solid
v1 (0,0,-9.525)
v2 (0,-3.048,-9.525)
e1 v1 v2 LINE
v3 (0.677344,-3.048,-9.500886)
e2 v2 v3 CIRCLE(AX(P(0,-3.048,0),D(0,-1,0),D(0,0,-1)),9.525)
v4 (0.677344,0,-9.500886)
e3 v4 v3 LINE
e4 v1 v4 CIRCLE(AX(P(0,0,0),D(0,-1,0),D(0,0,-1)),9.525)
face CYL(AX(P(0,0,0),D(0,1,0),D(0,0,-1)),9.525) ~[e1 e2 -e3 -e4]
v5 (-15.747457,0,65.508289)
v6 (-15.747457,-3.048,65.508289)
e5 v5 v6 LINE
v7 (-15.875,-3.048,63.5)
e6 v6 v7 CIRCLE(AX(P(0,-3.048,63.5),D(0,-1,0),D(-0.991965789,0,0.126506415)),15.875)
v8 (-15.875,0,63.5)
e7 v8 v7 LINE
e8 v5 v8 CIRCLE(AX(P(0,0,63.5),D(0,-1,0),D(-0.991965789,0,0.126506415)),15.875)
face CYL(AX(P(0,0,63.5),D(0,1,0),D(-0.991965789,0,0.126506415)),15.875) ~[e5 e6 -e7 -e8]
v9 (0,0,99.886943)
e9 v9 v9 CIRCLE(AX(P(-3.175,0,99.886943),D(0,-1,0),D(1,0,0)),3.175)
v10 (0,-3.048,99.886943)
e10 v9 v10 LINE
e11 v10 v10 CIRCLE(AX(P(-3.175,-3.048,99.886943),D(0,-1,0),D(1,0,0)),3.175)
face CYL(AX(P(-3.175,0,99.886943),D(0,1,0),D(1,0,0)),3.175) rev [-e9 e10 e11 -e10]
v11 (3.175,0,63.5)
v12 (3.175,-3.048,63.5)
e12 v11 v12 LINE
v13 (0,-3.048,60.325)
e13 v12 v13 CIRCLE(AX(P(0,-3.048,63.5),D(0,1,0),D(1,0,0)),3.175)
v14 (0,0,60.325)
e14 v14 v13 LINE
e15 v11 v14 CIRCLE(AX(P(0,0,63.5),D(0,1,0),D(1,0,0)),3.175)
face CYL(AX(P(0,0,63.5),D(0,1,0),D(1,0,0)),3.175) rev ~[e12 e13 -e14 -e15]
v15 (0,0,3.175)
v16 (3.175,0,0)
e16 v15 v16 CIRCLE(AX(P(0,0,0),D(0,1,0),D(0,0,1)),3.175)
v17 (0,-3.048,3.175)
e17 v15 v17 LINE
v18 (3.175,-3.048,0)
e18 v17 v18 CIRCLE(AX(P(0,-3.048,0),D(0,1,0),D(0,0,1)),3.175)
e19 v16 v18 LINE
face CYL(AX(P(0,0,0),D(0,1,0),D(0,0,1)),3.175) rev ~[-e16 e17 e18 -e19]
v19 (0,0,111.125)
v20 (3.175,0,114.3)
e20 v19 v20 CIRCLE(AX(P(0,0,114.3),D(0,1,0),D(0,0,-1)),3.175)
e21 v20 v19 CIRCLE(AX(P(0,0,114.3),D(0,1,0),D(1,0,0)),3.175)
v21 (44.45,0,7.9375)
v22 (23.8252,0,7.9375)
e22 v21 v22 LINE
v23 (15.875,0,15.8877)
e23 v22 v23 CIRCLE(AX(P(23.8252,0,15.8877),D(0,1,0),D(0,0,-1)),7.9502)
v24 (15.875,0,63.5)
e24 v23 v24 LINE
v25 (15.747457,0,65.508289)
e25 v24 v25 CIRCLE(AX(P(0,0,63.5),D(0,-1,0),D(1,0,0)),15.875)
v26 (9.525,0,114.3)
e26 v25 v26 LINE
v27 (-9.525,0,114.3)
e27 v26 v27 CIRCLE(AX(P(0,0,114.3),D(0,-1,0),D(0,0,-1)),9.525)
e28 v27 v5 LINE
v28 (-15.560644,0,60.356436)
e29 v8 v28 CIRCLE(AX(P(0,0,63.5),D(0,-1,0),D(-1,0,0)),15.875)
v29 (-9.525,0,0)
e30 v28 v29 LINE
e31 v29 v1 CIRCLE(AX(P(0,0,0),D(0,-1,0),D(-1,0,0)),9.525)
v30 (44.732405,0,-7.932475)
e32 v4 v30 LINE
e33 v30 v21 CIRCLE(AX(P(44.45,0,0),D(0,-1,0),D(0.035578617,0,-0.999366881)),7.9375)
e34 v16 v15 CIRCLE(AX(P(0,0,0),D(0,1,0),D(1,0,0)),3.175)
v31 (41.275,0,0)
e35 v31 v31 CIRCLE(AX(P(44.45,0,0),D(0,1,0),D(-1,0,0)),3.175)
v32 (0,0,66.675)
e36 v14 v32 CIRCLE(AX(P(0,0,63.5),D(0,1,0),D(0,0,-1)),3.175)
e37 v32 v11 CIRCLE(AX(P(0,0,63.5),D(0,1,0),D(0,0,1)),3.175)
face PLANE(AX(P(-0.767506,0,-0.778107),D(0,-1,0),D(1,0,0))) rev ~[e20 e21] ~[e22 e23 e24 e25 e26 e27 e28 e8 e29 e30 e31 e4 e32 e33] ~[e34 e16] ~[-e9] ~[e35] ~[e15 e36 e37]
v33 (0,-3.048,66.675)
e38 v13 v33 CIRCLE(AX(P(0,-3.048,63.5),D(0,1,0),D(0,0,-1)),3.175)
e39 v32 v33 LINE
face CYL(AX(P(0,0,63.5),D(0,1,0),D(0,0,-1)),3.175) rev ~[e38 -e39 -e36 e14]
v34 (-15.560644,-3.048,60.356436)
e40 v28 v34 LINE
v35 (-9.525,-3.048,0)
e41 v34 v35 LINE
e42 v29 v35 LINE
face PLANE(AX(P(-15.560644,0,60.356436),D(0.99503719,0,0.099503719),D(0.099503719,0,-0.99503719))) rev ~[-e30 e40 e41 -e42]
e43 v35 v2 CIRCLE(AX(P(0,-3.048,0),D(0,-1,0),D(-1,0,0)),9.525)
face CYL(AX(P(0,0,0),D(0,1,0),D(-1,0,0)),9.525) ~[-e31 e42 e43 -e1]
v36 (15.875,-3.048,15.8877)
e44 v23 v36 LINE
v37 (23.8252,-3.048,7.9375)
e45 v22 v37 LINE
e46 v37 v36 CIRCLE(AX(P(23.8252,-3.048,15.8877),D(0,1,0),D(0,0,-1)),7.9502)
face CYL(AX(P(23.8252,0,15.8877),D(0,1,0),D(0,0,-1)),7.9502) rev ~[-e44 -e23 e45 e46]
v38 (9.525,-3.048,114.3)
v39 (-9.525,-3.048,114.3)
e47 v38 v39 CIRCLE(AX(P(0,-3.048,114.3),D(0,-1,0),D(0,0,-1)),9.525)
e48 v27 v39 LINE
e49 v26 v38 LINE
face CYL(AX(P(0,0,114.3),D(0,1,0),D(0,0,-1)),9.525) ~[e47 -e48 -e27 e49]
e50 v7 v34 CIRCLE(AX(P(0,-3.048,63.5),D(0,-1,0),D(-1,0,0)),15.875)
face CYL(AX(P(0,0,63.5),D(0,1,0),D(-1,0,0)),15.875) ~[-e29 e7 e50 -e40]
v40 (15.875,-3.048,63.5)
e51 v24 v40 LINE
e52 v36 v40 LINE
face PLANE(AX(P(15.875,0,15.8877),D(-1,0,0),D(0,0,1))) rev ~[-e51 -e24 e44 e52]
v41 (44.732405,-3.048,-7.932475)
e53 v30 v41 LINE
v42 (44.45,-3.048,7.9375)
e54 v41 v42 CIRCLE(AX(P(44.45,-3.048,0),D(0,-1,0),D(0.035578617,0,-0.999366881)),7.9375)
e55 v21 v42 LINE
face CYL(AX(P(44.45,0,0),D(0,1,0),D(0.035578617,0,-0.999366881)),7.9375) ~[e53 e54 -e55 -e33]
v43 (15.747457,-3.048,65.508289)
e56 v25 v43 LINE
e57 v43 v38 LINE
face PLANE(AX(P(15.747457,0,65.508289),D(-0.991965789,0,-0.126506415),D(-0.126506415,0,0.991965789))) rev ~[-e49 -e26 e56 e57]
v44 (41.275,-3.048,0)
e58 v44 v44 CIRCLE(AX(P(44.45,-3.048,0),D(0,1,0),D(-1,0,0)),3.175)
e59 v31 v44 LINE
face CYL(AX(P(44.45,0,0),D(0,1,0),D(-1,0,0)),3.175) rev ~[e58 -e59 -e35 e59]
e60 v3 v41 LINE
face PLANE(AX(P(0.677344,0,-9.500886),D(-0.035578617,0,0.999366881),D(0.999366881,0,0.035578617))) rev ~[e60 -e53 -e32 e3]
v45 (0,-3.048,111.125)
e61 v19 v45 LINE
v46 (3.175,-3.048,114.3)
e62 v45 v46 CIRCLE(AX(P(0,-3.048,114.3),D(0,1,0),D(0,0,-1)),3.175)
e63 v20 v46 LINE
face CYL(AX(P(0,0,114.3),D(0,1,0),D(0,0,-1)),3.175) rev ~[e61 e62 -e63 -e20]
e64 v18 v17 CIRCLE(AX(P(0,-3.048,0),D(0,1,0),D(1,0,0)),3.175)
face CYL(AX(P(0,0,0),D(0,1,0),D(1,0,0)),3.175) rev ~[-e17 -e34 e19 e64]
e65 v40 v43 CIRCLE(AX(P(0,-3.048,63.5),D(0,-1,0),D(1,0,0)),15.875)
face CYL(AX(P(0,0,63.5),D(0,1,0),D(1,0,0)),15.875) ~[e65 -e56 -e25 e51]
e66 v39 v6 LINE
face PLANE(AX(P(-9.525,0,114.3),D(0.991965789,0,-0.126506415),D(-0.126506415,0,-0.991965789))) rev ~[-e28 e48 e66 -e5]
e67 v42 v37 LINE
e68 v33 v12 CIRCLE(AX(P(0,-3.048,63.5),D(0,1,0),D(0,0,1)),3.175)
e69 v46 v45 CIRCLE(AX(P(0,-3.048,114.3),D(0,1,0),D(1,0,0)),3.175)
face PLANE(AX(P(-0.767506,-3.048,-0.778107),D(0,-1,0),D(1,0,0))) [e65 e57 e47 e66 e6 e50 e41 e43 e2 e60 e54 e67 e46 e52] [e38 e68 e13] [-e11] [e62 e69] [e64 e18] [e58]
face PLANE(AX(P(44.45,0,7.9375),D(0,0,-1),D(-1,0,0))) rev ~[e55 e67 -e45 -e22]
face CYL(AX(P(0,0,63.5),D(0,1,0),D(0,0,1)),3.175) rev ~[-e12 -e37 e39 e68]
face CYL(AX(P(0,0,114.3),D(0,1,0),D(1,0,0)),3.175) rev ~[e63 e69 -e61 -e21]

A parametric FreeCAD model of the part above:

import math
import FreeCAD as App
import Part
import Sketcher
Q = App.Units.Quantity

doc = App.newDocument("Part")
body = doc.addObject("PartDesign::Body", "Body")

# Sketch on XZ plane
sketch1 = doc.addObject("Sketcher::SketchObject", "Sketch")
body.addObject(sketch1)
sketch1.AttachmentSupport = (doc.XZ_Plane, [""])
sketch1.MapMode = "FlatFace"
sketch1.addGeometry([
    Part.ArcOfCircle(Part.Circle(App.Vector(0, 0, 0), App.Vector(0, 0, 1), 9.525), math.radians(180), math.radians(270)),  # 0
    Part.ArcOfCircle(Part.Circle(App.Vector(0, 0, 0), App.Vector(0, 0, 1), 9.525), math.radians(-90), math.radians(-85.92213)),  # 1
    Part.LineSegment(App.Vector(0.677344, -9.500886, 0), App.Vector(44.732405, -7.932475, 0)),  # 2
    Part.ArcOfCircle(Part.Circle(App.Vector(44.45, 0, 0), App.Vector(0, 0, 1), 7.9375), math.radians(-87.961065), math.radians(90)),  # 3
    Part.LineSegment(App.Vector(44.45, 7.9375, 0), App.Vector(23.8252, 7.9375, 0)),  # 4
    Part.ArcOfCircle(Part.Circle(App.Vector(23.8252, 15.8877, 0), App.Vector(0, 0, 1), 7.9502), math.radians(180), math.radians(270)),  # 5
    Part.LineSegment(App.Vector(15.875, 15.8877, 0), App.Vector(15.875, 63.5, 0)),  # 6
    Part.ArcOfCircle(Part.Circle(App.Vector(0, 63.5, 0), App.Vector(0, 0, 1), 15.875), math.radians(0), math.radians(7.267758)),  # 7
    Part.LineSegment(App.Vector(15.747457, 65.508289, 0), App.Vector(9.525, 114.3, 0)),  # 8
    Part.ArcOfCircle(Part.Circle(App.Vector(0, 114.3, 0), App.Vector(0, 0, 1), 9.525), math.radians(0), math.radians(180)),  # 9
    Part.LineSegment(App.Vector(-9.525, 114.3, 0), App.Vector(-15.747457, 65.508289, 0)),  # 10
    Part.ArcOfCircle(Part.Circle(App.Vector(0, 63.5, 0), App.Vector(0, 0, 1), 15.875), math.radians(172.732242), math.radians(180)),  # 11
    Part.ArcOfCircle(Part.Circle(App.Vector(0, 63.5, 0), App.Vector(0, 0, 1), 15.875), math.radians(180), math.radians(191.421186)),  # 12
    Part.LineSegment(App.Vector(-15.560644, 60.356436, 0), App.Vector(-9.525, 0, 0)),  # 13
    Part.ArcOfCircle(Part.Circle(App.Vector(0, 0, 0), App.Vector(0, 0, 1), 3.175), math.radians(90), math.radians(360)),  # 14
    Part.ArcOfCircle(Part.Circle(App.Vector(0, 0, 0), App.Vector(0, 0, 1), 3.175), math.radians(0), math.radians(90)),  # 15
    Part.Circle(App.Vector(44.45, 0, 0), App.Vector(0, 0, 1), 3.175),  # 16
    Part.ArcOfCircle(Part.Circle(App.Vector(0, 63.5, 0), App.Vector(0, 0, 1), 3.175), math.radians(90), math.radians(270)),  # 17
    Part.ArcOfCircle(Part.Circle(App.Vector(0, 63.5, 0), App.Vector(0, 0, 1), 3.175), math.radians(0), math.radians(90)),  # 18
    Part.ArcOfCircle(Part.Circle(App.Vector(0, 63.5, 0), App.Vector(0, 0, 1), 3.175), math.radians(-90), math.radians(0)),  # 19
    Part.Circle(App.Vector(-3.175, 99.886943, 0), App.Vector(0, 0, 1), 3.175),  # 20
    Part.ArcOfCircle(Part.Circle(App.Vector(0, 114.3, 0), App.Vector(0, 0, 1), 3.175), math.radians(0), math.radians(270)),  # 21
    Part.ArcOfCircle(Part.Circle(App.Vector(0, 114.3, 0), App.Vector(0, 0, 1), 3.175), math.radians(-90), math.radians(0)),  # 22
], False)
sketch1.addConstraint([
    Sketcher.Constraint("Tangent", 0, 2, 1, 1),
    Sketcher.Constraint("Coincident", 1, 2, 2, 1),
    Sketcher.Constraint("Tangent", 2, 2, 3, 1),
    Sketcher.Constraint("Tangent", 3, 2, 4, 1),
    Sketcher.Constraint("Tangent", 4, 2, 5, 2),
    Sketcher.Constraint("Tangent", 5, 1, 6, 1),
    Sketcher.Constraint("Tangent", 6, 2, 7, 1),
    Sketcher.Constraint("Tangent", 7, 2, 8, 1),
    Sketcher.Constraint("Coincident", 8, 2, 9, 1),
    Sketcher.Constraint("Coincident", 9, 2, 10, 1),
    Sketcher.Constraint("Tangent", 10, 2, 11, 1),
    Sketcher.Constraint("Tangent", 11, 2, 12, 1),
    Sketcher.Constraint("Coincident", 12, 2, 13, 1),
    Sketcher.Constraint("Coincident", 13, 2, 0, 1),
    Sketcher.Constraint("Tangent", 14, 1, 15, 2),
    Sketcher.Constraint("Coincident", 15, 1, 14, 2),
    Sketcher.Constraint("Tangent", 17, 1, 18, 2),
    Sketcher.Constraint("Tangent", 18, 1, 19, 2),
    Sketcher.Constraint("Tangent", 19, 1, 17, 2),
    Sketcher.Constraint("Tangent", 21, 1, 22, 2),
    Sketcher.Constraint("Coincident", 22, 1, 21, 2),
    Sketcher.Constraint("Horizontal", 4),
    Sketcher.Constraint("Vertical", 6),
    Sketcher.Constraint("Coincident", 0, 3, -1, 1),
    Sketcher.Constraint("Coincident", 14, 3, -1, 1),
    Sketcher.Constraint("Coincident", 11, 3, 7, 3),
    Sketcher.Constraint("Coincident", 16, 3, 3, 3),
    Sketcher.Constraint("Coincident", 17, 3, 7, 3),
    Sketcher.Constraint("Coincident", 21, 3, 9, 3),
    Sketcher.Constraint("Equal", 0, 1),
    Sketcher.Constraint("Equal", 1, 9),
    Sketcher.Constraint("Equal", 7, 11),
    Sketcher.Constraint("Equal", 11, 12),
    Sketcher.Constraint("Equal", 15, 16),
    Sketcher.Constraint("Equal", 16, 17),
    Sketcher.Constraint("Equal", 19, 20),
    Sketcher.Constraint("Equal", 20, 21),
    Sketcher.Constraint("Symmetric", 8, 2, 9, 2, -2),
    Sketcher.Constraint("Symmetric", 6, 2, 11, 2, -2),
    Sketcher.Constraint("PointOnObject", 3, 3, -1),
    Sketcher.Constraint("PointOnObject", 0, 2, -2),
    Sketcher.Constraint("PointOnObject", 13, 2, -1),
    Sketcher.Constraint("PointOnObject", 14, 1, -2),
    Sketcher.Constraint("PointOnObject", 15, 1, -1),
    Sketcher.Constraint("PointOnObject", 17, 1, -2),
    Sketcher.Constraint("PointOnObject", 19, 1, -2),
    Sketcher.Constraint("PointOnObject", 22, 1, -2),
    Sketcher.Constraint("Horizontal", 22, 3, 8, 2),
    Sketcher.Constraint("Horizontal", 11, 2, 18, 1),
    Sketcher.Constraint("Horizontal", 9, 2, 21, 1),
    Sketcher.Constraint("Diameter", 16, Q("0.25 in")),
    Sketcher.Constraint("Radius", 0, Q("0.375 in")),
    Sketcher.Constraint("Radius", 3, Q("0.3125 in")),
    Sketcher.Constraint("Radius", 5, Q("0.313 in")),
    Sketcher.Constraint("Radius", 7, Q("0.625 in")),
    Sketcher.Constraint("DistanceY", 7, 3, 9, 3, Q("2 in")),
    Sketcher.Constraint("DistanceY", -1, 1, 7, 3, Q("2.5 in")),
    Sketcher.Constraint("DistanceX", 20, 3, 8, 2, Q("0.5 in")),
    Sketcher.Constraint("DistanceX", 4, 2, 4, 1, Q("0.812 in")),
    Sketcher.Constraint("Distance", 2, 44.082972),
    Sketcher.Constraint("Distance", 13, 60.657467),
    Sketcher.Constraint("DistanceY", -1, 1, 20, 3, 99.886943),
])
pad1 = doc.addObject("PartDesign::Pad", "Pad")
body.addObject(pad1)
pad1.Profile = sketch1
pad1.Length = Q("0.12 in")

doc.recompute()
